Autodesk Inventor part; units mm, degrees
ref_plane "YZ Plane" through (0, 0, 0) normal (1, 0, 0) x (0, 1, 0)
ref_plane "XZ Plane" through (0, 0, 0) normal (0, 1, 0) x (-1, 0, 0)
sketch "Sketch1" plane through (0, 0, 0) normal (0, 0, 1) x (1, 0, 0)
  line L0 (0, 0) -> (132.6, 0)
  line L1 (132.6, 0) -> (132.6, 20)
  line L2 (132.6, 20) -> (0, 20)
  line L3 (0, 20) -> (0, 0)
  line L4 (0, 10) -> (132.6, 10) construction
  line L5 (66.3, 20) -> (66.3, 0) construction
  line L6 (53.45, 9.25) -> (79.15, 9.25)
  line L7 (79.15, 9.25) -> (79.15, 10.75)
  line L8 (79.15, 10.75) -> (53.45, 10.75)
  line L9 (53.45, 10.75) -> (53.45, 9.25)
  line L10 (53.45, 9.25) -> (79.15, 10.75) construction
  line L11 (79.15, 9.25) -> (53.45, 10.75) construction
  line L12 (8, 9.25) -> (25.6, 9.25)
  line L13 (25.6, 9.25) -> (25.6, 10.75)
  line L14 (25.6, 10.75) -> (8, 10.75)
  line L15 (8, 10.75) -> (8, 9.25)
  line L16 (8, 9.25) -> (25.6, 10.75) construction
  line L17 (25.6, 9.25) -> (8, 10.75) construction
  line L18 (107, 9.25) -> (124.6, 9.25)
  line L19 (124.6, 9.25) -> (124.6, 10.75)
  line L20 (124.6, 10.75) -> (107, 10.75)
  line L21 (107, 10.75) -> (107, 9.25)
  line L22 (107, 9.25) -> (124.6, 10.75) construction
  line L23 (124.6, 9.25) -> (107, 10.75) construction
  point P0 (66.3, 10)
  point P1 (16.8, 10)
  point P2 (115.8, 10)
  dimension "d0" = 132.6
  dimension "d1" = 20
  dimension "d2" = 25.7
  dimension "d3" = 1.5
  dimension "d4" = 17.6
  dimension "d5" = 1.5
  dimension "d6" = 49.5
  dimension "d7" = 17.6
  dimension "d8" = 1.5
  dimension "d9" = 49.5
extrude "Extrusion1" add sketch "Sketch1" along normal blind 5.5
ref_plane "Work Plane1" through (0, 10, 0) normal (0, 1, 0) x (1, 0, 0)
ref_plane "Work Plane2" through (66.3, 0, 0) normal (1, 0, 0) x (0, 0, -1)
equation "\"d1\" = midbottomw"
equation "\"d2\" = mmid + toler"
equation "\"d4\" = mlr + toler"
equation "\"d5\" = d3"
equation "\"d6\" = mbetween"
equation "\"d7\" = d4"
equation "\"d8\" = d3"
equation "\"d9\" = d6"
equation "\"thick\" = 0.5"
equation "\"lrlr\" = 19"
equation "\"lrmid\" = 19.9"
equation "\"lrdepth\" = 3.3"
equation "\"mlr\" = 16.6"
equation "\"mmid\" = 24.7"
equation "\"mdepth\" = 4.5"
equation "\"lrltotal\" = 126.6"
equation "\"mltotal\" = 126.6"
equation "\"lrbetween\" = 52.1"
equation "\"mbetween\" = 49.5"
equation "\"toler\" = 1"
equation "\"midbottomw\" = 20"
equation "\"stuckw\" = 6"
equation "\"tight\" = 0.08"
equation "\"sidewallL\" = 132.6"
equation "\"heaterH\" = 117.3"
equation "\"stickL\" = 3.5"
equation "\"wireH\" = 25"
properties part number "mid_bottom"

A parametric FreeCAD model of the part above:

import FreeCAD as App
import Part
import Sketcher

V = App.Vector
Q = App.Units.Quantity

doc = App.newDocument("Part")
body = doc.addObject("PartDesign::Body", "Body")

# Sketch on XY plane
sketch1 = doc.addObject("Sketcher::SketchObject", "Sketch")
body.addObject(sketch1)
sketch1.AttachmentSupport = (doc.XY_Plane, [""])
sketch1.MapMode = "FlatFace"
sketch1.addGeometry([
    Part.LineSegment(V(0, 20, 0), V(0, 0, 0)),  # 0
    Part.LineSegment(V(0, 0, 0), V(132.6, 0, 0)),  # 1
    Part.LineSegment(V(132.6, 0, 0), V(132.6, 20, 0)),  # 2
    Part.LineSegment(V(132.6, 20, 0), V(0, 20, 0)),  # 3
    Part.LineSegment(V(25.6, 9.2, 0), V(8, 9.2, 0)),  # 4
    Part.LineSegment(V(8, 9.2, 0), V(8, 10.8, 0)),  # 5
    Part.LineSegment(V(8, 10.8, 0), V(25.6, 10.8, 0)),  # 6
    Part.LineSegment(V(25.6, 10.8, 0), V(25.6, 9.2, 0)),  # 7
    Part.LineSegment(V(79.2, 9.2, 0), V(53.5, 9.2, 0)),  # 8
    Part.LineSegment(V(53.5, 9.2, 0), V(53.5, 10.8, 0)),  # 9
    Part.LineSegment(V(53.5, 10.8, 0), V(79.2, 10.8, 0)),  # 10
    Part.LineSegment(V(79.2, 10.8, 0), V(79.2, 9.2, 0)),  # 11
    Part.LineSegment(V(124.6, 9.2, 0), V(107, 9.2, 0)),  # 12
    Part.LineSegment(V(107, 9.2, 0), V(107, 10.8, 0)),  # 13
    Part.LineSegment(V(107, 10.8, 0), V(124.6, 10.8, 0)),  # 14
    Part.LineSegment(V(124.6, 10.8, 0), V(124.6, 9.2, 0)),  # 15
], False)
sketch1.addConstraint([
    Sketcher.Constraint("Coincident", 0, 2, 1, 1),
    Sketcher.Constraint("Coincident", 1, 2, 2, 1),
    Sketcher.Constraint("Coincident", 2, 2, 3, 1),
    Sketcher.Constraint("Coincident", 3, 2, 0, 1),
    Sketcher.Constraint("Coincident", 4, 2, 5, 1),
    Sketcher.Constraint("Coincident", 5, 2, 6, 1),
    Sketcher.Constraint("Coincident", 6, 2, 7, 1),
    Sketcher.Constraint("Coincident", 7, 2, 4, 1),
    Sketcher.Constraint("Coincident", 8, 2, 9, 1),
    Sketcher.Constraint("Coincident", 9, 2, 10, 1),
    Sketcher.Constraint("Coincident", 10, 2, 11, 1),
    Sketcher.Constraint("Coincident", 11, 2, 8, 1),
    Sketcher.Constraint("Coincident", 12, 2, 13, 1),
    Sketcher.Constraint("Coincident", 13, 2, 14, 1),
    Sketcher.Constraint("Coincident", 14, 2, 15, 1),
    Sketcher.Constraint("Coincident", 15, 2, 12, 1),
    Sketcher.Constraint("Vertical", 0),
    Sketcher.Constraint("Horizontal", 1),
    Sketcher.Constraint("Vertical", 2),
    Sketcher.Constraint("Horizontal", 3),
    Sketcher.Constraint("Horizontal", 4),
    Sketcher.Constraint("Vertical", 5),
    Sketcher.Constraint("Horizontal", 6),
    Sketcher.Constraint("Vertical", 7),
    Sketcher.Constraint("Horizontal", 8),
    Sketcher.Constraint("Vertical", 9),
    Sketcher.Constraint("Horizontal", 10),
    Sketcher.Constraint("Vertical", 11),
    Sketcher.Constraint("Horizontal", 12),
    Sketcher.Constraint("Vertical", 13),
    Sketcher.Constraint("Horizontal", 14),
    Sketcher.Constraint("Vertical", 15),
    Sketcher.Constraint("Coincident", 0, 2, -1, 1),
    Sketcher.Constraint("Horizontal", 7, 2, 8, 2),
    Sketcher.Constraint("Horizontal", 6, 2, 9, 2),
    Sketcher.Constraint("Horizontal", 11, 2, 12, 2),
    Sketcher.Constraint("Horizontal", 10, 2, 13, 2),
    Sketcher.Constraint("Equal", 6, 12),
    Sketcher.Constraint("DistanceY", 0, 2, 0, 1, Q("20 mm")),
    Sketcher.Constraint("DistanceX", 1, 1, 1, 2, Q("132.6 mm")),
    Sketcher.Constraint("DistanceX", 4, 2, 4, 1, Q("17.6 mm")),
    Sketcher.Constraint("DistanceX", 8, 2, 8, 1, Q("25.7 mm")),
    Sketcher.Constraint("DistanceY", 5, 1, 5, 2, Q("1.5 mm")),
    Sketcher.Constraint("DistanceX", -1, 1, 4, 2, Q("8 mm")),
    Sketcher.Constraint("DistanceX", -1, 1, 12, 2, Q("107 mm")),
    Sketcher.Constraint("DistanceY", -1, 1, 4, 2, Q("9.25 mm")),
    Sketcher.Constraint("DistanceX", -1, 1, 8, 2, Q("53.45 mm")),
])
pad1 = doc.addObject("PartDesign::Pad", "Pad")
body.addObject(pad1)
pad1.Profile = sketch1
pad1.Length = 5.5

doc.recompute()
